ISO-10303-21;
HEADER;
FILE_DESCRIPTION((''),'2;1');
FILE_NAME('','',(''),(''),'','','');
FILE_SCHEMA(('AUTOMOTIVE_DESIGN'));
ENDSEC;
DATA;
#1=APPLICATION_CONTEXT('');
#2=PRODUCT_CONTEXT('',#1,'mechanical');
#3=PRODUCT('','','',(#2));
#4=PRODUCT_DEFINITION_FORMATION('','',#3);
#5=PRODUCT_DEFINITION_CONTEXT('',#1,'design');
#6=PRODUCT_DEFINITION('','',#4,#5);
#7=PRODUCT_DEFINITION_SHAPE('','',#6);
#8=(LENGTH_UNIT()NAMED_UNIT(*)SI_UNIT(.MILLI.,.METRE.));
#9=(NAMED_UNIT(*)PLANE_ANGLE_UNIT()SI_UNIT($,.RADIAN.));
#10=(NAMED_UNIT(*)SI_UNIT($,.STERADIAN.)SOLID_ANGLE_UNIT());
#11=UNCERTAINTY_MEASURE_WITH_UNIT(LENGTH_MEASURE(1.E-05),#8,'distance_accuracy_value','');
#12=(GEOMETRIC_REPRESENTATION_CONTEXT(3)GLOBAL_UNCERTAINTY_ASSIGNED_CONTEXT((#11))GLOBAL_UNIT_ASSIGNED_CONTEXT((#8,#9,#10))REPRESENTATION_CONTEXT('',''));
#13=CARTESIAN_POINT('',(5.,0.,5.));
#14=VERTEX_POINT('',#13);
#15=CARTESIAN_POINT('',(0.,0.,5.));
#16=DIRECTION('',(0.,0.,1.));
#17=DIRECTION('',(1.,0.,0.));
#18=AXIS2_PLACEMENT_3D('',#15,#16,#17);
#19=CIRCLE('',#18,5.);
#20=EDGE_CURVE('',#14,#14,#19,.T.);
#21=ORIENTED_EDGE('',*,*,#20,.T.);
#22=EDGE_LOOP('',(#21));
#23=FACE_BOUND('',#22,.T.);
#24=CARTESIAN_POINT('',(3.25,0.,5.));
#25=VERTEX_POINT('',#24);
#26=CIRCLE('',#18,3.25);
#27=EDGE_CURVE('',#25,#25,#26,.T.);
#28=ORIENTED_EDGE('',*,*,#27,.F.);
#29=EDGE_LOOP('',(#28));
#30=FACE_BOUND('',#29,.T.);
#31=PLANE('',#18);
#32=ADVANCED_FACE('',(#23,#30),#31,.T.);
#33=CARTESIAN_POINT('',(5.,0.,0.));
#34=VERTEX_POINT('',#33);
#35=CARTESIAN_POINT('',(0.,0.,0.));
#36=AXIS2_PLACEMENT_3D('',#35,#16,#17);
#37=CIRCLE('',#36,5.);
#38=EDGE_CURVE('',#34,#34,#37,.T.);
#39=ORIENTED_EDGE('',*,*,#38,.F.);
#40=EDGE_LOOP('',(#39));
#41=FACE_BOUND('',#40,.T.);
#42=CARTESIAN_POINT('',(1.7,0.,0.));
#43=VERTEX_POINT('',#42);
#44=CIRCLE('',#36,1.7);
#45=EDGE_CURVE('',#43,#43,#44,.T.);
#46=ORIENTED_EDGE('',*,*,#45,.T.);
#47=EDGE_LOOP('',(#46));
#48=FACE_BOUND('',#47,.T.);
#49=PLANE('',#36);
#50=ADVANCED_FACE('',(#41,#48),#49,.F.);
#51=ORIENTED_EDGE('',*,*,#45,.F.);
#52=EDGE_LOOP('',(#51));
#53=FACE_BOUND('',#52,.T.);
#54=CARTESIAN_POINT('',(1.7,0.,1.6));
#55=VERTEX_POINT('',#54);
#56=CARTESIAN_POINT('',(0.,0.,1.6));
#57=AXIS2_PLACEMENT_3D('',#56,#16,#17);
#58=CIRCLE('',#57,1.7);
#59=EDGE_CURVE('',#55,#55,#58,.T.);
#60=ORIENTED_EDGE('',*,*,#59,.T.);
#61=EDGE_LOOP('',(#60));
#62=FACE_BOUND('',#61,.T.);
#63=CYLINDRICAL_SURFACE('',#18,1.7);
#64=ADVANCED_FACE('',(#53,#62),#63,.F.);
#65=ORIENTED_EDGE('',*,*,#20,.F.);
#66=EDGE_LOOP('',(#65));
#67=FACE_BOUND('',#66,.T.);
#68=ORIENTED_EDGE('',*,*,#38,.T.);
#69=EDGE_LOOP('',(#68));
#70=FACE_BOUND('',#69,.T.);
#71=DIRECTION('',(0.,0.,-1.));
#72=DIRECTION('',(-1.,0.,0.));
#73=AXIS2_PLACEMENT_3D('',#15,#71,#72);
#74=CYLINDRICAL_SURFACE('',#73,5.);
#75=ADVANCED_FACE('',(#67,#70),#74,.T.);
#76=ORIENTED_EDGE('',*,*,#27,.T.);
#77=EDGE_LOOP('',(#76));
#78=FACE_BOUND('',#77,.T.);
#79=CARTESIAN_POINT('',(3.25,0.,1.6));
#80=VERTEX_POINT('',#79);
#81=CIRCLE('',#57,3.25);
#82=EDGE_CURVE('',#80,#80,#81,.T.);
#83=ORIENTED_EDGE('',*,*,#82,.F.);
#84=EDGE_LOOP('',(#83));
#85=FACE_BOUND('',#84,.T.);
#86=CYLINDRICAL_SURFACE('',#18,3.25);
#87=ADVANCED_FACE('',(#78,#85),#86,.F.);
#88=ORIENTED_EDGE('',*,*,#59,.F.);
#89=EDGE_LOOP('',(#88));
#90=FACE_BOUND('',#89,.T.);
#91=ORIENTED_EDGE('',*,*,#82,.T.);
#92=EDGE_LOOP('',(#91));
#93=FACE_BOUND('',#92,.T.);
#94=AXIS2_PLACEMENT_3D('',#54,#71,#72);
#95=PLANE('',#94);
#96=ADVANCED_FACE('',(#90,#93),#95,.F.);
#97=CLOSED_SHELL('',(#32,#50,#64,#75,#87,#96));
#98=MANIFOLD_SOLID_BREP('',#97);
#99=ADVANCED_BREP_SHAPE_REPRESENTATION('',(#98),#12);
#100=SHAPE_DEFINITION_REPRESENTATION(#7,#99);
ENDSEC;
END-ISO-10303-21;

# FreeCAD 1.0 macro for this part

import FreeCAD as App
import Part
import Sketcher

V = App.Vector
Q = App.Units.Quantity

doc = App.newDocument("Part")
body = doc.addObject("PartDesign::Body", "Body")

# Sketch on XY plane
sketch1 = doc.addObject("Sketcher::SketchObject", "Sketch")
body.addObject(sketch1)
sketch1.AttachmentSupport = (doc.XY_Plane, [""])
sketch1.MapMode = "FlatFace"
sketch1.addGeometry(Part.Circle(V(0, 0, 0), V(0, 0, 1), 5), False)
sketch1.addConstraint(Sketcher.Constraint("Coincident", 0, 3, -1, 1))
sketch1.addConstraint(Sketcher.Constraint("Diameter", 0, Q("10 mm")))
pad1 = doc.addObject("PartDesign::Pad", "Pad")
body.addObject(pad1)
pad1.Profile = sketch1
pad1.Length = 5

# Sketch on XY plane
sketch2 = doc.addObject("Sketcher::SketchObject", "Sketch001")
body.addObject(sketch2)
sketch2.AttachmentSupport = (doc.XY_Plane, [""])
sketch2.MapMode = "FlatFace"
sketch2.AttachmentOffset = App.Placement(V(0, 0, 5), App.Rotation())
sketch2.addGeometry(Part.Circle(V(0, 0, 0), V(0, 0, 1), 1.7), False)
sketch2.addConstraint(Sketcher.Constraint("Coincident", 0, 3, -1, 1))
sketch2.addConstraint(Sketcher.Constraint("Diameter", 0, Q("3.4 mm")))
doc.recompute()
hole = doc.addObject("PartDesign::Hole", "Hole")
body.addObject(hole)
hole.Profile = sketch2
hole.ThreadType = "None"
hole.Diameter = 3.4
hole.DepthType = "ThroughAll"
hole.HoleCutType = "Counterbore"
hole.HoleCutDiameter = 6.5
hole.HoleCutDepth = 3.4

doc.recompute()
